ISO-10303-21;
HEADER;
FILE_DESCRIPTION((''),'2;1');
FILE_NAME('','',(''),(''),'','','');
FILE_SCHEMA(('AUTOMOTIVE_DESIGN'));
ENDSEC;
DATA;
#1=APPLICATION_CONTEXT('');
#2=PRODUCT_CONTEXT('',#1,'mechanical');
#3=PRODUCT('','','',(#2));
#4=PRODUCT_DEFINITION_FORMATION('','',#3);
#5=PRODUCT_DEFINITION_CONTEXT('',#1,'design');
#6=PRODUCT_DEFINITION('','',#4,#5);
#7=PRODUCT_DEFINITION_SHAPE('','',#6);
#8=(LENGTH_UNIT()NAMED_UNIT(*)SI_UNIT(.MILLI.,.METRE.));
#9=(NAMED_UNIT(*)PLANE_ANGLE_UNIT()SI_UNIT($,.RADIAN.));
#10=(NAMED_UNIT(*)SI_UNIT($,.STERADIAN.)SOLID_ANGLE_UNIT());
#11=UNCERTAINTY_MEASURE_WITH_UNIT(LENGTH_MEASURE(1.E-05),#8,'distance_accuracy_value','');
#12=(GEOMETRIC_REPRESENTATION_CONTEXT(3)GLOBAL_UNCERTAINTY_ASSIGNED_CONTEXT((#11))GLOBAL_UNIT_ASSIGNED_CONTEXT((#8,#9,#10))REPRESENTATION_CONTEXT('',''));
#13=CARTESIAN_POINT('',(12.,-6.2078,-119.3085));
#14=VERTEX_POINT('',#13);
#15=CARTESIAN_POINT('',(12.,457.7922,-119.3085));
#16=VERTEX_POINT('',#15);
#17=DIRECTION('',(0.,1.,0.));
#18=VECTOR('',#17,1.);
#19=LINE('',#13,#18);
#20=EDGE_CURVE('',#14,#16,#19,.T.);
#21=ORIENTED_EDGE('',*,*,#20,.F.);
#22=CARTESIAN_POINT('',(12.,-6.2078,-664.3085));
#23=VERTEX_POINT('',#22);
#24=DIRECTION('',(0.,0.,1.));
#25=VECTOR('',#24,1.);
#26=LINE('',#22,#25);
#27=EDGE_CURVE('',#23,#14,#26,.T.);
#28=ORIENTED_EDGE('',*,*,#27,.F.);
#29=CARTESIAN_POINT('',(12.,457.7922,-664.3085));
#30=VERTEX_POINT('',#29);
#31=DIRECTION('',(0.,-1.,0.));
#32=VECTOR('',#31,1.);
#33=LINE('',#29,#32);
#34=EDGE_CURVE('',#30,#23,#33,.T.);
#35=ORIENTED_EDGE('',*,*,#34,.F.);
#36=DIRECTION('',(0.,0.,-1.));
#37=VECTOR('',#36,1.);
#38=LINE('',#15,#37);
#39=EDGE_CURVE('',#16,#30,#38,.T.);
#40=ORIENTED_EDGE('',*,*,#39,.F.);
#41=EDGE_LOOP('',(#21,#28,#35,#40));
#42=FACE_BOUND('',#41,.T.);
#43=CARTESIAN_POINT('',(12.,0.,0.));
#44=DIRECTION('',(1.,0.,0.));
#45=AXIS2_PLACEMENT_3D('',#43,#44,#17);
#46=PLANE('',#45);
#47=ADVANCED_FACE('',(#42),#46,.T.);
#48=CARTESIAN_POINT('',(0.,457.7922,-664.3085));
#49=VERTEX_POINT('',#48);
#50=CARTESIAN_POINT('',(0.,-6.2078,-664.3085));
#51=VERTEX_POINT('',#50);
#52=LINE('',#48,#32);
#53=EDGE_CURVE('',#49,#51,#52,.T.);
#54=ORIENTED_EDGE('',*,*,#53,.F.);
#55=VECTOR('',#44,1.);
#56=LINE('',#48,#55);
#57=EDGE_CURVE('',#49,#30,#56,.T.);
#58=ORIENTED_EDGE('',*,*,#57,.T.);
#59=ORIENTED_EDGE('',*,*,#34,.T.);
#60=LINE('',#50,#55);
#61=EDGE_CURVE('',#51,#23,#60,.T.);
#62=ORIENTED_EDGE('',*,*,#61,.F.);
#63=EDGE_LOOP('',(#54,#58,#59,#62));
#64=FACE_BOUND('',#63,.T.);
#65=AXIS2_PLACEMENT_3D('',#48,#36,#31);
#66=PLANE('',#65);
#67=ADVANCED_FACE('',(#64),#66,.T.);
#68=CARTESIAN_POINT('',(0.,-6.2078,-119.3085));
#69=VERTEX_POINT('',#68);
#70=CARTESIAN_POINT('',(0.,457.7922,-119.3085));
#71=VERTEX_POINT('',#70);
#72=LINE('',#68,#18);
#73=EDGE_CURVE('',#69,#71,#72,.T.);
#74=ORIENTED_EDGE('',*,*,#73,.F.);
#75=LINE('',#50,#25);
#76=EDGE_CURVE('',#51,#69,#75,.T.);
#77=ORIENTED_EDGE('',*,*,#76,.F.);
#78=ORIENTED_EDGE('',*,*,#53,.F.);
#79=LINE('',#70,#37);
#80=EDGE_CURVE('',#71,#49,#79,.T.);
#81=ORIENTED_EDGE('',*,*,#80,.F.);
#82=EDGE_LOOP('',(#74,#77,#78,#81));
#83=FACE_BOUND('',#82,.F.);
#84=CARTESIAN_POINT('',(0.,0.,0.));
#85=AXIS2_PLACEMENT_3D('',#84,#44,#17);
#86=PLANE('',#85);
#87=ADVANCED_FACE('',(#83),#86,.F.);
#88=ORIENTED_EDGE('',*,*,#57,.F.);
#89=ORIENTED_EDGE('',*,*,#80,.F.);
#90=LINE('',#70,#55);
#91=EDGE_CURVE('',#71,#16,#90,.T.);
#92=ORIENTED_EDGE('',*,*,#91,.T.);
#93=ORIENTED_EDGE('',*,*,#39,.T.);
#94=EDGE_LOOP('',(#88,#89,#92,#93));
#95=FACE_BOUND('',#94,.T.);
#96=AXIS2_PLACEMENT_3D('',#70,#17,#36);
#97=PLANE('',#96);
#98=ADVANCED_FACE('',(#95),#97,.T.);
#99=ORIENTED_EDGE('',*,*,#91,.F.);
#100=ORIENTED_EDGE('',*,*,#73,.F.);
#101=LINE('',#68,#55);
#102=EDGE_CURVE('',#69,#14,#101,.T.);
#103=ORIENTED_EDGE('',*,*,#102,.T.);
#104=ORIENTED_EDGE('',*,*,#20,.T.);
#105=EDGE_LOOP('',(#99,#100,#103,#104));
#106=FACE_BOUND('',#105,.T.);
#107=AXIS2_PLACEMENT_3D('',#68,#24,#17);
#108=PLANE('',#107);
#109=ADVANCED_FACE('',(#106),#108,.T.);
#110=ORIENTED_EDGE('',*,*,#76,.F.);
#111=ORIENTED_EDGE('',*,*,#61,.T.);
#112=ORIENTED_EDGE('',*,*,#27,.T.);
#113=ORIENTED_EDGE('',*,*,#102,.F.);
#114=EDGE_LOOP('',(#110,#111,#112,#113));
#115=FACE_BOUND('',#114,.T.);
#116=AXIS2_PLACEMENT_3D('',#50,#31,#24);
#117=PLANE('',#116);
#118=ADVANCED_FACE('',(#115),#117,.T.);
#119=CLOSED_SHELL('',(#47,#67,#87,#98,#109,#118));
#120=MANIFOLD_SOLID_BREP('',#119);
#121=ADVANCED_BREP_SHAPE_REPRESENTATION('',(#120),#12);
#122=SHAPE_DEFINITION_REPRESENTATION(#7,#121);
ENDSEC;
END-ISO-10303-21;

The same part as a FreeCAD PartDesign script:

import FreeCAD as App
import Part
import Sketcher
from FreeCAD import Vector
Q = App.Units.Quantity

doc = App.newDocument("Part")
body = doc.addObject("PartDesign::Body", "Body")

sketch1 = doc.addObject("Sketcher::SketchObject", "Sketch")
body.addObject(sketch1)
sketch1.AttachmentSupport = (doc.YZ_Plane, [""])
sketch1.MapMode = "FlatFace"
sketch1.addGeometry([
    Part.LineSegment(Vector(458, -119, 0), Vector(-6, -119, 0)),
    Part.LineSegment(Vector(-6, -119, 0), Vector(-6, -664, 0)),
    Part.LineSegment(Vector(-6, -664, 0), Vector(458, -664, 0)),
    Part.LineSegment(Vector(458, -664, 0), Vector(458, -119, 0)),
], False)
sketch1.addConstraint([
    Sketcher.Constraint("Coincident", 0, 2, 1, 1),
    Sketcher.Constraint("Coincident", 1, 2, 2, 1),
    Sketcher.Constraint("Coincident", 2, 2, 3, 1),
    Sketcher.Constraint("Coincident", 3, 2, 0, 1),
    Sketcher.Constraint("Horizontal", 0),
    Sketcher.Constraint("Vertical", 1),
    Sketcher.Constraint("Horizontal", 2),
    Sketcher.Constraint("Vertical", 3),
    Sketcher.Constraint("DistanceX", 0, 2, 0, 1, Q("464 mm")),
    Sketcher.Constraint("DistanceY", 1, 2, 1, 1, Q("545 mm")),
    Sketcher.Constraint("DistanceX", 0, 2, -1, 1, Q("6.2078 mm")),
    Sketcher.Constraint("DistanceY", 0, 2, -1, 1, Q("119.3085 mm")),
])
pad1 = doc.addObject("PartDesign::Pad", "Pad")
body.addObject(pad1)
pad1.Profile = sketch1
pad1.Length = 12

doc.recompute()
